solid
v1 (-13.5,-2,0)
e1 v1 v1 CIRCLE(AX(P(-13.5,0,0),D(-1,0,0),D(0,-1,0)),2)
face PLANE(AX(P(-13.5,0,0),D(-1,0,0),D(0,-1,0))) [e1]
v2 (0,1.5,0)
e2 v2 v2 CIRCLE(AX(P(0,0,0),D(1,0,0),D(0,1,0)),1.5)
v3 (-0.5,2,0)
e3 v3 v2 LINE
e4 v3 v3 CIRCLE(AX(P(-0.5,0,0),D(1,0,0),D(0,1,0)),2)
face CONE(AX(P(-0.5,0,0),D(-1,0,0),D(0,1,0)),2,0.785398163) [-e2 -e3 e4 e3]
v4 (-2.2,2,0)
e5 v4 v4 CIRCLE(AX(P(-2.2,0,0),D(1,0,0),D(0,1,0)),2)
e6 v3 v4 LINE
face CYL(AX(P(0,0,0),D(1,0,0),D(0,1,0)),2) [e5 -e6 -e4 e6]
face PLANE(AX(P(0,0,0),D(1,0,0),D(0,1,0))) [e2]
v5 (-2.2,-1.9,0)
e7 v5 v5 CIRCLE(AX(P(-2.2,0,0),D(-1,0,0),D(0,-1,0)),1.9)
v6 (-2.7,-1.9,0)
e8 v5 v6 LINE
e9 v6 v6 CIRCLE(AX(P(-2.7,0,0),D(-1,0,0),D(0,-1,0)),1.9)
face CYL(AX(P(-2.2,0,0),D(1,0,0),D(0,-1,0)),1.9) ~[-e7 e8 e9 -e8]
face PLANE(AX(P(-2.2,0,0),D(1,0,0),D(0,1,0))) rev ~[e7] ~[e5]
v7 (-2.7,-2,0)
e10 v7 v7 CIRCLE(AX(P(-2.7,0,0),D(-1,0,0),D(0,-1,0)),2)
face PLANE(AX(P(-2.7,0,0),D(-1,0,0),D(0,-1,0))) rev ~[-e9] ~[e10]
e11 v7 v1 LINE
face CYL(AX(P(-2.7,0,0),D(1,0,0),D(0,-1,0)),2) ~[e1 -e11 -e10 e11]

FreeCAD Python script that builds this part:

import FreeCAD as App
import Part
import Sketcher

V = App.Vector
Q = App.Units.Quantity


def edges_at(feature, points):
    """Names of the edges that pass closest to the given points."""
    edges = feature.Shape.Edges
    near = lambda p: min(range(len(edges)), key=lambda i: edges[i].distToShape(Part.Vertex(*p))[0])
    return sorted({f"Edge{near(p) + 1}" for p in points})

doc = App.newDocument("Part")
body = doc.addObject("PartDesign::Body", "Body")

# Sketch on YZ plane
sketch1 = doc.addObject("Sketcher::SketchObject", "Sketch")
body.addObject(sketch1)
sketch1.AttachmentSupport = (doc.YZ_Plane, [""])
sketch1.MapMode = "FlatFace"
sketch1.addGeometry(Part.Circle(V(0, 0, 0), V(0, 0, 1), 2), False)
sketch1.addConstraint(Sketcher.Constraint("Coincident", 0, 3, -1, 1))
sketch1.addConstraint(Sketcher.Constraint("Diameter", 0, Q("4 mm")))
pad1 = doc.addObject("PartDesign::Pad", "Pad")
body.addObject(pad1)
pad1.Profile = sketch1
pad1.Length = 2.2
pad1.Reversed = True

# Sketch on YZ plane
sketch2 = doc.addObject("Sketcher::SketchObject", "Sketch001")
body.addObject(sketch2)
sketch2.AttachmentSupport = (doc.YZ_Plane, [""])
sketch2.MapMode = "FlatFace"
sketch2.AttachmentOffset = App.Placement(V(0, 0, -2.2), App.Rotation())
sketch2.addGeometry(Part.Circle(V(0, 0, 0), V(0, 0, 1), 1.9), False)
sketch2.addConstraint(Sketcher.Constraint("Coincident", 0, 3, -1, 1))
sketch2.addConstraint(Sketcher.Constraint("Diameter", 0, Q("3.8 mm")))
pad2 = doc.addObject("PartDesign::Pad", "Pad001")
body.addObject(pad2)
pad2.Profile = sketch2
pad2.Length = 0.5
pad2.Reversed = True

# Sketch on YZ plane
sketch3 = doc.addObject("Sketcher::SketchObject", "Sketch002")
body.addObject(sketch3)
sketch3.AttachmentSupport = (doc.YZ_Plane, [""])
sketch3.MapMode = "FlatFace"
sketch3.AttachmentOffset = App.Placement(V(0, 0, -2.7), App.Rotation())
sketch3.addGeometry(Part.Circle(V(0, 0, 0), V(0, 0, 1), 2), False)
sketch3.addConstraint(Sketcher.Constraint("Coincident", 0, 3, -1, 1))
sketch3.addConstraint(Sketcher.Constraint("Diameter", 0, Q("4 mm")))
pad3 = doc.addObject("PartDesign::Pad", "Pad002")
body.addObject(pad3)
pad3.Profile = sketch3
pad3.Length = 10.8
pad3.Reversed = True
doc.recompute()

chamfer = doc.addObject("PartDesign::Chamfer", "Chamfer")
body.addObject(chamfer)
chamfer.Base = (pad3, edges_at(pad3, [(0, -2, 0)]))
chamfer.Size = 0.5

doc.recompute()
